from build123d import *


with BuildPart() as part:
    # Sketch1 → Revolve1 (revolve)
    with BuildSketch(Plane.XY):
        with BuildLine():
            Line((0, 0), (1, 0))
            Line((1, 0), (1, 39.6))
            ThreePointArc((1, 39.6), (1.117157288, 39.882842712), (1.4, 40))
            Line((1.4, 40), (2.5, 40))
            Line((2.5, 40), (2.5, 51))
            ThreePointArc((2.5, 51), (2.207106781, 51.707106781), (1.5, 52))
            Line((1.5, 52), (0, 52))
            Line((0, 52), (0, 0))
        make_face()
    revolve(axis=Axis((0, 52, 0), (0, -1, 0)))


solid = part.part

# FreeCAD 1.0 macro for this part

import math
import FreeCAD as App
import Part
import Sketcher
Q = App.Units.Quantity

doc = App.newDocument("Part")
body = doc.addObject("PartDesign::Body", "Body")

# Sketch on XY plane
sketch1 = body.newObject("Sketcher::SketchObject", "Sketch")
sketch1.AttachmentSupport = (doc.getObject("XY_Plane"), [""])
sketch1.MapMode = "FlatFace"
sketch1.addGeometry([
    Part.LineSegment(App.Vector(0, 0, 0), App.Vector(1, 0, 0)),  # 0
    Part.LineSegment(App.Vector(1, 0, 0), App.Vector(1, 39.6, 0)),  # 1
    Part.ArcOfCircle(Part.Circle(App.Vector(1.4, 39.6, 0), App.Vector(0, 0, 1), 0.4), math.radians(90), math.radians(180)),  # 2
    Part.LineSegment(App.Vector(1.4, 40, 0), App.Vector(2.5, 40, 0)),  # 3
    Part.LineSegment(App.Vector(2.5, 40, 0), App.Vector(2.5, 51, 0)),  # 4
    Part.ArcOfCircle(Part.Circle(App.Vector(1.5, 51, 0), App.Vector(0, 0, 1), 1), math.radians(0), math.radians(90)),  # 5
    Part.LineSegment(App.Vector(1.5, 52, 0), App.Vector(0, 52, 0)),  # 6
    Part.LineSegment(App.Vector(0, 52, 0), App.Vector(0, 0, 0)),  # 7
], False)
sketch1.addConstraint([
    Sketcher.Constraint("Coincident", 0, 2, 1, 1),
    Sketcher.Constraint("Tangent", 1, 2, 2, 2),
    Sketcher.Constraint("Tangent", 2, 1, 3, 1),
    Sketcher.Constraint("Coincident", 3, 2, 4, 1),
    Sketcher.Constraint("Tangent", 4, 2, 5, 1),
    Sketcher.Constraint("Tangent", 5, 2, 6, 1),
    Sketcher.Constraint("Coincident", 6, 2, 7, 1),
    Sketcher.Constraint("Coincident", 7, 2, 0, 1),
    Sketcher.Constraint("Horizontal", 0),
    Sketcher.Constraint("Vertical", 1),
    Sketcher.Constraint("Horizontal", 3),
    Sketcher.Constraint("Vertical", 4),
    Sketcher.Constraint("Horizontal", 6),
    Sketcher.Constraint("Vertical", 7),
    Sketcher.Constraint("Coincident", 7, 2, -1, 1),
    Sketcher.Constraint("Radius", 5, Q("1 mm")),
    Sketcher.Constraint("Radius", 2, Q("0.4 mm")),
    Sketcher.Constraint("DistanceX", 0, 1, 0, 2, Q("1 mm")),
    Sketcher.Constraint("DistanceY", 4, 1, 4, 2, Q("11 mm")),
    Sketcher.Constraint("DistanceY", 7, 2, 7, 1, Q("52 mm")),
    Sketcher.Constraint("DistanceX", 3, 1, 3, 2, Q("1.1 mm")),
])
revolution = body.newObject("PartDesign::Revolution", "Revolution")
revolution.Profile = sketch1
revolution.ReferenceAxis = (sketch1, ["V_Axis"])
revolution.Angle = 360

doc.recompute()
